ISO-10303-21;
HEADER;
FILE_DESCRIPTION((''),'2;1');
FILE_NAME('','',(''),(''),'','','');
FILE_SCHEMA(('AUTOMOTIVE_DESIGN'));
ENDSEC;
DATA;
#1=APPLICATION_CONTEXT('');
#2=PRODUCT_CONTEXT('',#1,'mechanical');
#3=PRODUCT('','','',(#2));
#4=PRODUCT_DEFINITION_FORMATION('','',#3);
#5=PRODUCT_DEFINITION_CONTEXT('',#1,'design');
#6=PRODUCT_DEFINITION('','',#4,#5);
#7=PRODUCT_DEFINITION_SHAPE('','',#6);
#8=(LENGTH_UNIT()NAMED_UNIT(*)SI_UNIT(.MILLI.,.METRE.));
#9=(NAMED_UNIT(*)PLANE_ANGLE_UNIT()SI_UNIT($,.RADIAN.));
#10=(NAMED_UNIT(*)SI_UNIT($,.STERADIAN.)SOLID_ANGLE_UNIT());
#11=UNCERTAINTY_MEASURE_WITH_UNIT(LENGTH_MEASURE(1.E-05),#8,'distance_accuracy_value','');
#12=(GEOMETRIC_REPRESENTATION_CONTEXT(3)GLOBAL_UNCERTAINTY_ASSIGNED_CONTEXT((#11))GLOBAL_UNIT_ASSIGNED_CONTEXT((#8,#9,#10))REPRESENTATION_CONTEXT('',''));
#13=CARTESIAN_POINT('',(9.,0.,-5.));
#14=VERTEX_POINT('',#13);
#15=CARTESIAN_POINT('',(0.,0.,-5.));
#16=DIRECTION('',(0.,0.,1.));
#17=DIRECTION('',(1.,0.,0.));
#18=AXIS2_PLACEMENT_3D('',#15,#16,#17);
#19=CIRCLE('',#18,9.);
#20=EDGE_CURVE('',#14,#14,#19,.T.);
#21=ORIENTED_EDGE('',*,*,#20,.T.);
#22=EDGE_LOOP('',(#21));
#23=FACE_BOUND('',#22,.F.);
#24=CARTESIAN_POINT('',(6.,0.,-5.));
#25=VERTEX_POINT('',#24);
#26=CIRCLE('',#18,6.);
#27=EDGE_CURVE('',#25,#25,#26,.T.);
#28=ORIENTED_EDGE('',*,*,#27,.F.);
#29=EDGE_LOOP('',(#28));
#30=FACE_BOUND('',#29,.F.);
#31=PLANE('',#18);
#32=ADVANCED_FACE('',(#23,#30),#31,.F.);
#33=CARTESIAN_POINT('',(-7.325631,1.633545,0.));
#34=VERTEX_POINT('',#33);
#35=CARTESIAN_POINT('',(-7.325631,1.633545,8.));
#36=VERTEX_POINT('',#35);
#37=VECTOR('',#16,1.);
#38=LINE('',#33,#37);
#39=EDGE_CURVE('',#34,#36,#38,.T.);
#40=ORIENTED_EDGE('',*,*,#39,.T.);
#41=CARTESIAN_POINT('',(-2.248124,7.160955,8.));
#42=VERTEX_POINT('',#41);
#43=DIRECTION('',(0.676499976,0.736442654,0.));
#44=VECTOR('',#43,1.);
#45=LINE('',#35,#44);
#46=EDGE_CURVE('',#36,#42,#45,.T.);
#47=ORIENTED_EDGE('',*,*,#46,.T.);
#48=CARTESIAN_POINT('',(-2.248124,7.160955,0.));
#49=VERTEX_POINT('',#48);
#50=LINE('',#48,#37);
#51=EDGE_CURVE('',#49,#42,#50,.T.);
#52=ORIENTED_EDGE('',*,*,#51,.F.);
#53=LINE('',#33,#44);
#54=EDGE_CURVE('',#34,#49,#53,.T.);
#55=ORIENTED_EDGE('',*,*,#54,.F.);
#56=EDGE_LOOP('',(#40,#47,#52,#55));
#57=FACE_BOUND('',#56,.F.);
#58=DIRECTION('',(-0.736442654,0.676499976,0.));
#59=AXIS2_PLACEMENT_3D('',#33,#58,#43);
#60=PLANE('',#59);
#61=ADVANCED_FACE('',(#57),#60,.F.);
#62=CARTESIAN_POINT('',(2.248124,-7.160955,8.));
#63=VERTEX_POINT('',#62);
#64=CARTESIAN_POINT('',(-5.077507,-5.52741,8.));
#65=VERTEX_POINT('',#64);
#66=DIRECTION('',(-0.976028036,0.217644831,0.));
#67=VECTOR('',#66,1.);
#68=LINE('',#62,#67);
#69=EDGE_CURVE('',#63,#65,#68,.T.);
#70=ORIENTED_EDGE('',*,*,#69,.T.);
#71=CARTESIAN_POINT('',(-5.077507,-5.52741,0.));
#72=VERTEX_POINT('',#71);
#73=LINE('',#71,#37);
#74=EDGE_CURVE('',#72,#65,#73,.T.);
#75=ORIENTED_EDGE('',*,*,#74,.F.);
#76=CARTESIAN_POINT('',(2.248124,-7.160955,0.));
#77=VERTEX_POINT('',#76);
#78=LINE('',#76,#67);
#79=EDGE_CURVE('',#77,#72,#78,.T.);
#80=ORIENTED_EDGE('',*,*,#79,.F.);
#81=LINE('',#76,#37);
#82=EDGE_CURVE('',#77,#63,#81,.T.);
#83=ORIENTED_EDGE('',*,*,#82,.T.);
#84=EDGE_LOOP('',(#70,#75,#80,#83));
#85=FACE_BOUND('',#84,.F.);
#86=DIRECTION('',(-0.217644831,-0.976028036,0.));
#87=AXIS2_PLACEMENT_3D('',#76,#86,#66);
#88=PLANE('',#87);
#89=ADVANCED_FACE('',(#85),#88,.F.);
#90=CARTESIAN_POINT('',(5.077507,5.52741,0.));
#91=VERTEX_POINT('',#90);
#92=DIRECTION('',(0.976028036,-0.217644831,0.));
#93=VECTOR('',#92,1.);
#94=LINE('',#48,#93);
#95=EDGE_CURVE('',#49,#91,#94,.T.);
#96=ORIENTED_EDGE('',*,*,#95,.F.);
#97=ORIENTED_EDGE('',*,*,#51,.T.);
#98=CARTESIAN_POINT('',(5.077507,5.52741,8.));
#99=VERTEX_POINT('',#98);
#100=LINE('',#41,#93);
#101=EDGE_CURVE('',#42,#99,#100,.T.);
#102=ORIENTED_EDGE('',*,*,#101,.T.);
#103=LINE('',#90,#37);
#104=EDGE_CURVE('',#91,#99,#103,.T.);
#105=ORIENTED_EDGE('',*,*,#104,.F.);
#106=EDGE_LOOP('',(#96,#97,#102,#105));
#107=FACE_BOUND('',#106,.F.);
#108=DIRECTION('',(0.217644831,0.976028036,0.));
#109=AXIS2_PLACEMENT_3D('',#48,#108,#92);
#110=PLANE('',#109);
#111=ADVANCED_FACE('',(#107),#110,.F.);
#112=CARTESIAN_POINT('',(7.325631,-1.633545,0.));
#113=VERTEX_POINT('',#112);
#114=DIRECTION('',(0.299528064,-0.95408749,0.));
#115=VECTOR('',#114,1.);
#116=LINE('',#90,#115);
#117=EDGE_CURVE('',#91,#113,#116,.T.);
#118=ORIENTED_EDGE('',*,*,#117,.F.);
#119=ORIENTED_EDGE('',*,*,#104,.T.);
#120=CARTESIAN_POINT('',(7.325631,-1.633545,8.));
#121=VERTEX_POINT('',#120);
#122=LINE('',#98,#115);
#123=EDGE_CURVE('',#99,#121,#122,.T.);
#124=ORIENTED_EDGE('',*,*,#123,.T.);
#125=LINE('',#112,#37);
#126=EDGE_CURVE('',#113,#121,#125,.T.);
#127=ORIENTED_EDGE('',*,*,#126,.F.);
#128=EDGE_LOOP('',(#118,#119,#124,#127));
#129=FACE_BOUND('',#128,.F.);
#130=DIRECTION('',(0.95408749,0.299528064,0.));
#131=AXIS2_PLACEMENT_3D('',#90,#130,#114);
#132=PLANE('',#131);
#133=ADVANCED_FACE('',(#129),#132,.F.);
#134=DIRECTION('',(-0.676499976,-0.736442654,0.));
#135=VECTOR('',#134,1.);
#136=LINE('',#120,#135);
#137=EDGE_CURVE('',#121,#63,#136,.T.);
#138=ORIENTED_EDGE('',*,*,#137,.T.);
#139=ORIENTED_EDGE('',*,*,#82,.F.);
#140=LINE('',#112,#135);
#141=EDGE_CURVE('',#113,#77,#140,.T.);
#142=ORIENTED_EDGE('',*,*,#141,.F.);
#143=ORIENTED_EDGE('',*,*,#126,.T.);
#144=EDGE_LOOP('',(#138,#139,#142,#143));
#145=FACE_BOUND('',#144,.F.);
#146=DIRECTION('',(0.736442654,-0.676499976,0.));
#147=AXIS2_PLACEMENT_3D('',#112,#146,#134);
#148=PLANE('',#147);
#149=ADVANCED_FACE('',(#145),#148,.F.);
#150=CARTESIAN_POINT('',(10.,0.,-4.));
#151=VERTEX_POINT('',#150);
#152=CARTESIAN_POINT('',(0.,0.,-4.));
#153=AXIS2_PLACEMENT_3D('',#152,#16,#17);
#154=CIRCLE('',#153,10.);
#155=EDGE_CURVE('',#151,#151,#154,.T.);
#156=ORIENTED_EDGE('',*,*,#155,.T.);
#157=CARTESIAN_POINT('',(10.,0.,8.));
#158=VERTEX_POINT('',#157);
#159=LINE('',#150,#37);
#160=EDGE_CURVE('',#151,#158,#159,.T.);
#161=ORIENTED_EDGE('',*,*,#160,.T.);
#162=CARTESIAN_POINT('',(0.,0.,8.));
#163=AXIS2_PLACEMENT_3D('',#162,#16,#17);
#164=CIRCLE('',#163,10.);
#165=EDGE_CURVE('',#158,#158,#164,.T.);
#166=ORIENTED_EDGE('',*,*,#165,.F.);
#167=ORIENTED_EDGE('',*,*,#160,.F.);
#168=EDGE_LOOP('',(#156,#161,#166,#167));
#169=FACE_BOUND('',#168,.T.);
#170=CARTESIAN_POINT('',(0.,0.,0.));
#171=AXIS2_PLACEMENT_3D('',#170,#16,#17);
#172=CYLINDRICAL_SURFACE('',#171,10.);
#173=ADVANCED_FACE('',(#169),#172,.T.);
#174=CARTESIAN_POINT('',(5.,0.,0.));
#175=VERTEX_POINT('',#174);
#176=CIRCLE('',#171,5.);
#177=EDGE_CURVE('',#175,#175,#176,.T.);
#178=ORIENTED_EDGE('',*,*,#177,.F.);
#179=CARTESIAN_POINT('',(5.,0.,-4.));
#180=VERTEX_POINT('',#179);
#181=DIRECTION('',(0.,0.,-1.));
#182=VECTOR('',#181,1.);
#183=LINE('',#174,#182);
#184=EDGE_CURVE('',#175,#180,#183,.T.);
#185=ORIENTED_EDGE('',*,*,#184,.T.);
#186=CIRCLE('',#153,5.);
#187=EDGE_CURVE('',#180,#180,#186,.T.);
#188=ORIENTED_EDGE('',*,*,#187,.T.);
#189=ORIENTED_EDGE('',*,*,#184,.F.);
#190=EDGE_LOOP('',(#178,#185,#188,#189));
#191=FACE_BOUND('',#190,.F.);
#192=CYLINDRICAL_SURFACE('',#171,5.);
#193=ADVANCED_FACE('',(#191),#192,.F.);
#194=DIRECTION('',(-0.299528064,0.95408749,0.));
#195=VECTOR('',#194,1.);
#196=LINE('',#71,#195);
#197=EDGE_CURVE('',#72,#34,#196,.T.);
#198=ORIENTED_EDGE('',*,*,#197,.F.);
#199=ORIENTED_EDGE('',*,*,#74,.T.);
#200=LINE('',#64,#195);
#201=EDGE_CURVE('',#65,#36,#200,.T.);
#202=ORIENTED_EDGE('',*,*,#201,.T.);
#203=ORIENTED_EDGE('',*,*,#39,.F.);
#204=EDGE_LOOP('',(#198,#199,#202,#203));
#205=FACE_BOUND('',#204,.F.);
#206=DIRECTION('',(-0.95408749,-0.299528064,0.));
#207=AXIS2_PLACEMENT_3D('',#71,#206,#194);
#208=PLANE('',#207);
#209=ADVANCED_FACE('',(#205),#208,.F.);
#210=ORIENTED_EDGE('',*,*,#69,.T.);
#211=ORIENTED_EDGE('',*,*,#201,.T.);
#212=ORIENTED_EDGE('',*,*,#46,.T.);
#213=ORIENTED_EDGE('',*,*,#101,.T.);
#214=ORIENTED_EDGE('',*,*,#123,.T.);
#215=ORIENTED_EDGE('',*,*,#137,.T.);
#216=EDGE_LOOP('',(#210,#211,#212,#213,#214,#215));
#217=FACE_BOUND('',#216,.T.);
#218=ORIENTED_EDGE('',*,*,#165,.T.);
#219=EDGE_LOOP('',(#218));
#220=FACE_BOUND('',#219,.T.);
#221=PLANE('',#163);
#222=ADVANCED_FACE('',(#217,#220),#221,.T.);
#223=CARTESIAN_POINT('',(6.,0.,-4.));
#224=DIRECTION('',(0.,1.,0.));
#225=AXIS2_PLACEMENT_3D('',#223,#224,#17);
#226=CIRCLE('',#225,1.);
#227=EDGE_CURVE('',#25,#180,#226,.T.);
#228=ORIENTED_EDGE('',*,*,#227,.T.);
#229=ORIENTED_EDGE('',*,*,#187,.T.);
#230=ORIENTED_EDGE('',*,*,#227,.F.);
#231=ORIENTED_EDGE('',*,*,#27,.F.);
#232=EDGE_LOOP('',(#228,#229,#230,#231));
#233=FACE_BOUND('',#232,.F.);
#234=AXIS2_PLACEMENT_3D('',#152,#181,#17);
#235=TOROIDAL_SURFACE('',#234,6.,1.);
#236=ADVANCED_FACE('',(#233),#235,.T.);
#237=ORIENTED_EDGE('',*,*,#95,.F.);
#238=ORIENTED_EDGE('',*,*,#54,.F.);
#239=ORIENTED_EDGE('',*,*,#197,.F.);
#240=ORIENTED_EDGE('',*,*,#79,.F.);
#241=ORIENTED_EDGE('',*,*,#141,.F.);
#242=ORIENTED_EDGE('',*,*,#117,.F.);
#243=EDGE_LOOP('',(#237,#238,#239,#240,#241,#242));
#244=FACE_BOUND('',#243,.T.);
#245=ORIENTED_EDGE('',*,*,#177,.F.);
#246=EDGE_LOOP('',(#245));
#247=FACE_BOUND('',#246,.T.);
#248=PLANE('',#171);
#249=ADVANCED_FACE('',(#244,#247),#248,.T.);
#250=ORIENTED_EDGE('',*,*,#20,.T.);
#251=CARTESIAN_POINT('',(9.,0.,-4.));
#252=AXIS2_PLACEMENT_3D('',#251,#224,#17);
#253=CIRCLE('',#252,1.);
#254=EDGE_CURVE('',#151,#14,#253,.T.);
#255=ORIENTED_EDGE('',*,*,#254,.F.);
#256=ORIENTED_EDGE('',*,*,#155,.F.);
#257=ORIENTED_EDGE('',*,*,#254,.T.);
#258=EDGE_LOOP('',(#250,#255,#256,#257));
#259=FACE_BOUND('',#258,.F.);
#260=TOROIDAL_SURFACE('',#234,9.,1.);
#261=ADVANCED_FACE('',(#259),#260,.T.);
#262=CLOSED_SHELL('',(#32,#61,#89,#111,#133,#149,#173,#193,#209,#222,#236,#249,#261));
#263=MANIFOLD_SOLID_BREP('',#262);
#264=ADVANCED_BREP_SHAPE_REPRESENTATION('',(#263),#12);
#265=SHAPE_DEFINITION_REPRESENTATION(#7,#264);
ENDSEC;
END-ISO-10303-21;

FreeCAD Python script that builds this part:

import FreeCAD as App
import Part
import Sketcher
from FreeCAD import Vector


def edges_at(feature, points):
    """Names of the edges that pass closest to the given points."""
    edges = feature.Shape.Edges
    near = lambda p: min(range(len(edges)), key=lambda i: edges[i].distToShape(Part.Vertex(*p))[0])
    return sorted({f"Edge{near(p) + 1}" for p in points})


def add_polygon(sketch, points):
    """Adds a closed chain of lines whose ends are joined by coincident constraints."""
    first, n = sketch.GeometryCount, len(points)
    for a, b in zip(points, points[1:] + points[:1]):
        sketch.addGeometry(Part.LineSegment(App.Vector(*a, 0), App.Vector(*b, 0)), False)
    for i in range(n):
        sketch.addConstraint(Sketcher.Constraint("Coincident", first + i, 2, first + (i + 1) % n, 1))

doc = App.newDocument("Part")
body = doc.addObject("PartDesign::Body", "Body")

# Sketch on XY plane
sketch1 = body.newObject("Sketcher::SketchObject", "Sketch")
sketch1.AttachmentSupport = (doc.getObject("XY_Plane"), [""])
sketch1.MapMode = "FlatFace"
sketch1.addGeometry([
    Part.Circle(Vector(0, 0, 0), Vector(0, 0, 1), 10),
    Part.Circle(Vector(0, 0, 0), Vector(0, 0, 1), 5),
], False)
sketch1.addConstraint([
    Sketcher.Constraint("Coincident", 0, 3, -1, 1),
    Sketcher.Constraint("Coincident", 1, 3, -1, 1),
    Sketcher.Constraint("Diameter", 0, 20.0),
    Sketcher.Constraint("Diameter", 1, 10.0),
])
pad1 = body.newObject("PartDesign::Pad", "Pad")
pad1.Profile = sketch1
pad1.Length = 5
pad1.Reversed = True

# Sketch on XY plane
sketch2 = body.newObject("Sketcher::SketchObject", "Sketch001")
sketch2.AttachmentSupport = (doc.getObject("XY_Plane"), [""])
sketch2.MapMode = "FlatFace"
sketch2.addGeometry(Part.Circle(Vector(0, 0, 0), Vector(0, 0, 1), 10), False)  # 0
add_polygon(sketch2, [(-5, -6), (-7, 2), (-2, 7), (5, 6), (7, -2), (2, -7)])  # lines 1-6
sketch2.addConstraint([
    Sketcher.Constraint("Coincident", 0, 3, -1, 1),
    Sketcher.Constraint("Symmetric", 1, 2, 4, 2, -1, 1),
    Sketcher.Constraint("Symmetric", 2, 2, 5, 2, -1, 1),
    Sketcher.Constraint("Symmetric", 3, 2, 6, 2, -1, 1),
    Sketcher.Constraint("Equal", 1, 2),
    Sketcher.Constraint("Equal", 2, 3),
    Sketcher.Constraint("Diameter", 0, 20.0),
    Sketcher.Constraint("DistanceY", 4, 2, 2, 2, 8.7945),
    Sketcher.Constraint("DistanceX", 1, 2, -1, 1, 7.325631),
    Sketcher.Constraint("DistanceY", -1, 1, 3, 2, 5.52741),
    Sketcher.Constraint("DistanceY", 1, 2, 2, 2, 5.52741),
])
pad2 = body.newObject("PartDesign::Pad", "Pad001")
pad2.Profile = sketch2
pad2.Length = 8
doc.recompute()

fillet = body.newObject("PartDesign::Fillet", "Fillet")
fillet.Base = (pad2, edges_at(pad2, [(-10, 0, -5), (-5, 0, -5)]))
fillet.Radius = 1

doc.recompute()
